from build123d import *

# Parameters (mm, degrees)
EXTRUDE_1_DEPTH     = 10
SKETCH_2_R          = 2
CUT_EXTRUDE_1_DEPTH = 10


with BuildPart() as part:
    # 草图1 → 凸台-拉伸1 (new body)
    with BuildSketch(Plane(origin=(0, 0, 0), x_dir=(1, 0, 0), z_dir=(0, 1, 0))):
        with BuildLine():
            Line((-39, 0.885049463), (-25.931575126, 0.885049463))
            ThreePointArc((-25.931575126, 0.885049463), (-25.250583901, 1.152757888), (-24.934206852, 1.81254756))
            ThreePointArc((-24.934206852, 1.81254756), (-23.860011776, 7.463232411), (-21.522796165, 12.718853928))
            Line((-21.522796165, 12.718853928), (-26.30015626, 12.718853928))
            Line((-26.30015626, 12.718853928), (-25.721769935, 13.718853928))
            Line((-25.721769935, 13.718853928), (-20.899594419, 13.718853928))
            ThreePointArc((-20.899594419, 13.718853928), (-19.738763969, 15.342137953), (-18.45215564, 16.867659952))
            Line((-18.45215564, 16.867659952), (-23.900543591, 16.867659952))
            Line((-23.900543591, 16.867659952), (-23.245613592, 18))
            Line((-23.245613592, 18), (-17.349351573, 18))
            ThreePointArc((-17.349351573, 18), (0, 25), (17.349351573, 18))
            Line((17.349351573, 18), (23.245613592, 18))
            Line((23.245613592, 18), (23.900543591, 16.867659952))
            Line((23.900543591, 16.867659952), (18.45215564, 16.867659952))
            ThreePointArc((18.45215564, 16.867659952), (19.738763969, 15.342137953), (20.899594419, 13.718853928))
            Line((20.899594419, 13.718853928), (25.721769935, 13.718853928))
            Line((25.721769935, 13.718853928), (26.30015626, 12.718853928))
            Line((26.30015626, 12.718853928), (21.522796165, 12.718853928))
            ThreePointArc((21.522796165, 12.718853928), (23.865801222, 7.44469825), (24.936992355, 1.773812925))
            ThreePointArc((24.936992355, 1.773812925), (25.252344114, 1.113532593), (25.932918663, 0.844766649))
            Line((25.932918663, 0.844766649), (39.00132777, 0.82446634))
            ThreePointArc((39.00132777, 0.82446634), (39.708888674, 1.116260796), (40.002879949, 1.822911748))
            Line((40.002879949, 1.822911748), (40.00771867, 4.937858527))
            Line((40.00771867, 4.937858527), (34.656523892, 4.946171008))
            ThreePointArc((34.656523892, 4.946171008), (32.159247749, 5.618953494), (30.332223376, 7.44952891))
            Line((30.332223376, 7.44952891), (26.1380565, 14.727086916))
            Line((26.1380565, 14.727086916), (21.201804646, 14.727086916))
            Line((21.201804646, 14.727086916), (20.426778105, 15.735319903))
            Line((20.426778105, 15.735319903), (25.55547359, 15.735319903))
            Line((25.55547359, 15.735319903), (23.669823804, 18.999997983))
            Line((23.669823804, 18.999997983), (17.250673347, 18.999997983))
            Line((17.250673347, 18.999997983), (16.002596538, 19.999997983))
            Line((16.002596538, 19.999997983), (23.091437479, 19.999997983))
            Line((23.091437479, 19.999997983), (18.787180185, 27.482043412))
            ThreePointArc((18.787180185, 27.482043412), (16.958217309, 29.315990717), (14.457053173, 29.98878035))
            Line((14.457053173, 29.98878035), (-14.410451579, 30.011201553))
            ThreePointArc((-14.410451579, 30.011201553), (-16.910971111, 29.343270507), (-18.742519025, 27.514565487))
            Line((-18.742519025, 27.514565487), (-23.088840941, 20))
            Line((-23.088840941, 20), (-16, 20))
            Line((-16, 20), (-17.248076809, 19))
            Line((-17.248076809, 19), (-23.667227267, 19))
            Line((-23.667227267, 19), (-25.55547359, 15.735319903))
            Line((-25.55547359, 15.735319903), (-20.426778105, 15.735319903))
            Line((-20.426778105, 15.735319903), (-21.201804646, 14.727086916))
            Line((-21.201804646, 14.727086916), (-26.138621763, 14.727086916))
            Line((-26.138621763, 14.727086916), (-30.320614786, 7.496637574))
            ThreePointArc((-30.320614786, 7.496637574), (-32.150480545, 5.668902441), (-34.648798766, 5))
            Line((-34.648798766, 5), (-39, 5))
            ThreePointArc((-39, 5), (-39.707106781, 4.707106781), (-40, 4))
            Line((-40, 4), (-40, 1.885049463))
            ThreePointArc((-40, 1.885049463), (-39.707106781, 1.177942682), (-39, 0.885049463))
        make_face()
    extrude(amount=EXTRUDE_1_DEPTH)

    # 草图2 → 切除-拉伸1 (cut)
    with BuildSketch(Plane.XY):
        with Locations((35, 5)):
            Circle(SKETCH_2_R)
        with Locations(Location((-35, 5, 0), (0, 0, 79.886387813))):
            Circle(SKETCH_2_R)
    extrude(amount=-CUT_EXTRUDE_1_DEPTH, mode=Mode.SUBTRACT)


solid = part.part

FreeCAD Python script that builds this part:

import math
import FreeCAD as App
import Part
import Sketcher

V = App.Vector
Q = App.Units.Quantity

doc = App.newDocument("Part")
params = doc.addObject("Spreadsheet::Sheet", "Params")
for row, (alias, value) in enumerate([
    ("sketch1_radius", "1 mm"),
    ("sketch1_radius2", "25 mm"),
    ("sketch1_radius3", "5 mm"),
    ("pad1_length", "10 mm"),
    ("sketch2_diameter", "4 mm"),
    ("pocket1_length", "10 mm"),
], start=1):
    params.set(f"A{row}", alias)
    params.set(f"B{row}", "=" + value)
    params.setAlias(f"B{row}", alias)

body = doc.addObject("PartDesign::Body", "Body")

sketch1 = body.newObject("Sketcher::SketchObject", "Sketch")
sketch1.AttachmentSupport = (doc.getObject("XZ_Plane"), [""])
sketch1.MapMode = "FlatFace"
sketch1.addGeometry([
    Part.LineSegment(V(-39, -0.9, 0), V(-25.9, -0.9, 0)),
    Part.ArcOfCircle(Part.Circle(V(-25.9, -1.9, 0), V(0, 0, 1), 1), math.radians(4), math.radians(90)),
    Part.ArcOfCircle(Part.Circle(V(0, 0, 0), V(0, 0, 1), 25), math.radians(-176), math.radians(-149)),
    Part.LineSegment(V(-21.5, -12.7, 0), V(-26.3, -12.7, 0)),
    Part.LineSegment(V(-26.3, -12.7, 0), V(-25.7, -13.7, 0)),
    Part.LineSegment(V(-25.7, -13.7, 0), V(-20.9, -13.7, 0)),
    Part.ArcOfCircle(Part.Circle(V(0, 0, 0), V(0, 0, 1), 25), math.radians(-146.72), math.radians(-137.57)),
    Part.LineSegment(V(-18.5, -16.9, 0), V(-23.9, -16.9, 0)),
    Part.LineSegment(V(-23.9, -16.9, 0), V(-23.2, -18, 0)),
    Part.LineSegment(V(-23.2, -18, 0), V(-17.3, -18, 0)),
    Part.ArcOfCircle(Part.Circle(V(0, 0, 0), V(0, 0, 1), 25), math.radians(-134), math.radians(-46)),
    Part.LineSegment(V(17.3, -18, 0), V(23.2, -18, 0)),
    Part.LineSegment(V(23.2, -18, 0), V(23.9, -16.9, 0)),
    Part.LineSegment(V(23.9, -16.9, 0), V(18.5, -16.9, 0)),
    Part.ArcOfCircle(Part.Circle(V(0, 0, 0), V(0, 0, 1), 25), math.radians(-42.43), math.radians(-33.28)),
    Part.LineSegment(V(20.9, -13.7, 0), V(25.7, -13.7, 0)),
    Part.LineSegment(V(25.7, -13.7, 0), V(26.3, -12.7, 0)),
    Part.LineSegment(V(26.3, -12.7, 0), V(21.5, -12.7, 0)),
    Part.ArcOfCircle(Part.Circle(V(0, 0, 0), V(0, 0, 1), 25), math.radians(-31), math.radians(-4)),
    Part.ArcOfCircle(Part.Circle(V(25.9, -1.8, 0), V(0, 0, 1), 1), math.radians(90), math.radians(176)),
    Part.LineSegment(V(25.9, -0.8, 0), V(39, -0.8, 0)),
    Part.ArcOfCircle(Part.Circle(V(39, -1.8, 0), V(0, 0, 1), 1), math.radians(0), math.radians(90)),
    Part.LineSegment(V(40, -1.8, 0), V(40, -4.9, 0)),
    Part.LineSegment(V(40, -4.9, 0), V(34.7, -4.9, 0)),
    Part.ArcOfCircle(Part.Circle(V(34.7, -9.9, 0), V(0, 0, 1), 5), math.radians(90), math.radians(150)),
    Part.LineSegment(V(30.3, -7.4, 0), V(26.1, -14.7, 0)),
    Part.LineSegment(V(26.1, -14.7, 0), V(21.2, -14.7, 0)),
    Part.LineSegment(V(21.2, -14.7, 0), V(20.4, -15.7, 0)),
    Part.LineSegment(V(20.4, -15.7, 0), V(25.6, -15.7, 0)),
    Part.LineSegment(V(25.6, -15.7, 0), V(23.7, -19, 0)),
    Part.LineSegment(V(23.7, -19, 0), V(17.3, -19, 0)),
    Part.LineSegment(V(17.3, -19, 0), V(16, -20, 0)),
    Part.LineSegment(V(16, -20, 0), V(23.1, -20, 0)),
    Part.LineSegment(V(23.1, -20, 0), V(18.8, -27.5, 0)),
    Part.ArcOfCircle(Part.Circle(V(14.5, -25, 0), V(0, 0, 1), 5), math.radians(-90), math.radians(-30)),
    Part.LineSegment(V(14.5, -30, 0), V(-14.4, -30, 0)),
    Part.ArcOfCircle(Part.Circle(V(-14.4, -25, 0), V(0, 0, 1), 5), math.radians(-150), math.radians(-90)),
    Part.LineSegment(V(-18.7, -27.5, 0), V(-23.1, -20, 0)),
    Part.LineSegment(V(-23.1, -20, 0), V(-16, -20, 0)),
    Part.LineSegment(V(-16, -20, 0), V(-17.2, -19, 0)),
    Part.LineSegment(V(-17.2, -19, 0), V(-23.7, -19, 0)),
    Part.LineSegment(V(-23.7, -19, 0), V(-25.6, -15.7, 0)),
    Part.LineSegment(V(-25.6, -15.7, 0), V(-20.4, -15.7, 0)),
    Part.LineSegment(V(-20.4, -15.7, 0), V(-21.2, -14.7, 0)),
    Part.LineSegment(V(-21.2, -14.7, 0), V(-26.1, -14.7, 0)),
    Part.LineSegment(V(-26.1, -14.7, 0), V(-30.3, -7.5, 0)),
    Part.ArcOfCircle(Part.Circle(V(-34.6, -10, 0), V(0, 0, 1), 5), math.radians(30), math.radians(90)),
    Part.LineSegment(V(-34.6, -5, 0), V(-39, -5, 0)),
    Part.ArcOfCircle(Part.Circle(V(-39, -4, 0), V(0, 0, 1), 1), math.radians(-180), math.radians(-90)),
    Part.LineSegment(V(-40, -4, 0), V(-40, -1.9, 0)),
    Part.ArcOfCircle(Part.Circle(V(-39, -1.9, 0), V(0, 0, 1), 1), math.radians(90), math.radians(180)),
], False)
sketch1.addConstraint([
    Sketcher.Constraint("Tangent", 0, 2, 1, 2),
    Sketcher.Constraint("Tangent", 1, 1, 2, 1),
    Sketcher.Constraint("Coincident", 2, 2, 3, 1),
    Sketcher.Constraint("Coincident", 3, 2, 4, 1),
    Sketcher.Constraint("Coincident", 4, 2, 5, 1),
    Sketcher.Constraint("Coincident", 5, 2, 6, 1),
    Sketcher.Constraint("Coincident", 6, 2, 7, 1),
    Sketcher.Constraint("Coincident", 7, 2, 8, 1),
    Sketcher.Constraint("Coincident", 8, 2, 9, 1),
    Sketcher.Constraint("Coincident", 9, 2, 10, 1),
    Sketcher.Constraint("Coincident", 10, 2, 11, 1),
    Sketcher.Constraint("Coincident", 11, 2, 12, 1),
    Sketcher.Constraint("Coincident", 12, 2, 13, 1),
    Sketcher.Constraint("Coincident", 13, 2, 14, 1),
    Sketcher.Constraint("Coincident", 14, 2, 15, 1),
    Sketcher.Constraint("Coincident", 15, 2, 16, 1),
    Sketcher.Constraint("Coincident", 16, 2, 17, 1),
    Sketcher.Constraint("Coincident", 17, 2, 18, 1),
    Sketcher.Constraint("Tangent", 18, 2, 19, 2),
    Sketcher.Constraint("Tangent", 19, 1, 20, 1),
    Sketcher.Constraint("Tangent", 20, 2, 21, 2),
    Sketcher.Constraint("Tangent", 21, 1, 22, 1),
    Sketcher.Constraint("Coincident", 22, 2, 23, 1),
    Sketcher.Constraint("Tangent", 23, 2, 24, 1),
    Sketcher.Constraint("Tangent", 24, 2, 25, 1),
    Sketcher.Constraint("Coincident", 25, 2, 26, 1),
    Sketcher.Constraint("Coincident", 26, 2, 27, 1),
    Sketcher.Constraint("Coincident", 27, 2, 28, 1),
    Sketcher.Constraint("Coincident", 28, 2, 29, 1),
    Sketcher.Constraint("Coincident", 29, 2, 30, 1),
    Sketcher.Constraint("Coincident", 30, 2, 31, 1),
    Sketcher.Constraint("Coincident", 31, 2, 32, 1),
    Sketcher.Constraint("Coincident", 32, 2, 33, 1),
    Sketcher.Constraint("Tangent", 33, 2, 34, 2),
    Sketcher.Constraint("Tangent", 34, 1, 35, 1),
    Sketcher.Constraint("Tangent", 35, 2, 36, 2),
    Sketcher.Constraint("Tangent", 36, 1, 37, 1),
    Sketcher.Constraint("Coincident", 37, 2, 38, 1),
    Sketcher.Constraint("Coincident", 38, 2, 39, 1),
    Sketcher.Constraint("Coincident", 39, 2, 40, 1),
    Sketcher.Constraint("Coincident", 40, 2, 41, 1),
    Sketcher.Constraint("Coincident", 41, 2, 42, 1),
    Sketcher.Constraint("Coincident", 42, 2, 43, 1),
    Sketcher.Constraint("Coincident", 43, 2, 44, 1),
    Sketcher.Constraint("Coincident", 44, 2, 45, 1),
    Sketcher.Constraint("Tangent", 45, 2, 46, 1),
    Sketcher.Constraint("Tangent", 46, 2, 47, 1),
    Sketcher.Constraint("Tangent", 47, 2, 48, 2),
    Sketcher.Constraint("Tangent", 48, 1, 49, 1),
    Sketcher.Constraint("Tangent", 49, 2, 50, 2),
    Sketcher.Constraint("Tangent", 50, 1, 0, 1),
    Sketcher.Constraint("Horizontal", 0),
    Sketcher.Constraint("Horizontal", 3),
    Sketcher.Constraint("Horizontal", 5),
    Sketcher.Constraint("Horizontal", 7),
    Sketcher.Constraint("Horizontal", 9),
    Sketcher.Constraint("Horizontal", 11),
    Sketcher.Constraint("Horizontal", 13),
    Sketcher.Constraint("Horizontal", 15),
    Sketcher.Constraint("Horizontal", 17),
    Sketcher.Constraint("Horizontal", 26),
    Sketcher.Constraint("Horizontal", 28),
    Sketcher.Constraint("Horizontal", 30),
    Sketcher.Constraint("Horizontal", 32),
    Sketcher.Constraint("Horizontal", 38),
    Sketcher.Constraint("Horizontal", 40),
    Sketcher.Constraint("Horizontal", 42),
    Sketcher.Constraint("Horizontal", 44),
    Sketcher.Constraint("Horizontal", 47),
    Sketcher.Constraint("Vertical", 49),
    Sketcher.Constraint("Coincident", 2, 3, -1, 1),
    Sketcher.Constraint("Coincident", 6, 3, -1, 1),
    Sketcher.Constraint("Coincident", 10, 3, -1, 1),
    Sketcher.Constraint("Coincident", 14, 3, -1, 1),
    Sketcher.Constraint("Coincident", 18, 3, -1, 1),
    Sketcher.Constraint("Equal", 2, 6),
    Sketcher.Constraint("Equal", 6, 10),
    Sketcher.Constraint("Equal", 10, 14),
    Sketcher.Constraint("Equal", 14, 18),
    Sketcher.Constraint("Equal", 1, 19),
    Sketcher.Constraint("Equal", 19, 21),
    Sketcher.Constraint("Equal", 24, 34),
    Sketcher.Constraint("Equal", 34, 36),
    Sketcher.Constraint("Equal", 36, 46),
    Sketcher.Constraint("Equal", 21, 48),
    Sketcher.Constraint("Equal", 48, 50),
    Sketcher.Constraint("Symmetric", 8, 2, 11, 2, -2),
    Sketcher.Constraint("Symmetric", 7, 2, 12, 2, -2),
    Sketcher.Constraint("Symmetric", 4, 2, 15, 2, -2),
    Sketcher.Constraint("Symmetric", 3, 2, 16, 2, -2),
    Sketcher.Constraint("Symmetric", 28, 2, 41, 2, -2),
    Sketcher.Constraint("Symmetric", 26, 2, 43, 2, -2),
    Sketcher.Constraint("Parallel", 4, 8),
    Sketcher.Constraint("Perpendicular", 20, 22),
    Sketcher.Constraint("Perpendicular", 22, 23),
    Sketcher.Constraint("Parallel", 8, 37),
    Sketcher.Constraint("Parallel", 37, 41),
    Sketcher.Constraint("Parallel", 41, 45),
    Sketcher.Constraint("Equal", 32, 38),
    Sketcher.Constraint("Equal", 30, 40),
    Sketcher.Constraint("Equal", 28, 42),
    Sketcher.Constraint("Equal", 31, 39),
    Sketcher.Constraint("Radius", 1, Q("1 mm")),
    Sketcher.Constraint("Radius", 2, Q("25 mm")),
    Sketcher.Constraint("Radius", 24, Q("5 mm")),
    Sketcher.Constraint("DistanceY", 46, 3, -1, 1, Q("10 mm")),
    Sketcher.Constraint("DistanceX", 48, 3, -1, 1, Q("39 mm")),
    Sketcher.Constraint("DistanceY", 8, 2, -1, 1, Q("18 mm")),
    Sketcher.Constraint("DistanceY", 37, 2, -1, 1, Q("20 mm")),
    Sketcher.Constraint("DistanceX", 38, 2, -1, 1, Q("16 mm")),
    Sketcher.Constraint("DistanceY", 39, 2, -1, 1, Q("19 mm")),
    Sketcher.Constraint("DistanceX", 47, 2, 47, 1, Q("4.351201 mm")),
    Sketcher.Constraint("Distance", 8, Q("1.308101 mm")),
    Sketcher.Constraint("Distance", 23, Q("5.351201 mm")),
    Sketcher.Constraint("DistanceX", 3, 2, 3, 1, Q("4.77736 mm")),
    Sketcher.Constraint("DistanceX", 26, 2, 26, 1, Q("4.936252 mm")),
    Sketcher.Constraint("DistanceX", 30, 2, 30, 1, Q("6.41915 mm")),
    Sketcher.Constraint("DistanceX", 32, 1, 32, 2, Q("7.088841 mm")),
    Sketcher.Constraint("DistanceY", 49, 1, 49, 2, Q("2.114951 mm")),
    Sketcher.Constraint("DistanceY", 35, 2, -1, 1, Q("30.011202 mm")),
    Sketcher.Constraint("Distance", 4, Q("1.155219 mm")),
    Sketcher.Constraint("Distance", 22, Q("3.114951 mm")),
    Sketcher.Constraint("Distance", 27, Q("1.271692 mm")),
    Sketcher.Constraint("Distance", 29, Q("3.770119 mm")),
    Sketcher.Constraint("Distance", 31, Q("1.59928 mm")),
    Sketcher.Constraint("Distance", 33, Q("8.631781 mm")),
    Sketcher.Constraint("Distance", 37, Q("8.680968 mm")),
    Sketcher.Constraint("Distance", 41, Q("3.77142 mm")),
    Sketcher.Constraint("Distance", 45, Q("8.352752 mm")),
    Sketcher.Constraint("DistanceX", 5, 1, 5, 2, Q("4.822176 mm")),
    Sketcher.Constraint("DistanceX", 7, 2, 7, 1, Q("5.448388 mm")),
    Sketcher.Constraint("DistanceX", 28, 1, 28, 2, Q("5.128695 mm")),
    Sketcher.Constraint("DistanceX", -1, 1, 21, 3, Q("39.002881 mm")),
    Sketcher.Constraint("DistanceX", -1, 1, 24, 3, Q("34.664291 mm")),
    Sketcher.Constraint("DistanceX", -1, 1, 34, 3, Q("14.45317 mm")),
    Sketcher.Constraint("DistanceY", 34, 3, -1, 1, Q("24.988782 mm")),
    Sketcher.Constraint("DistanceX", -1, 1, 19, 1, Q("25.932919 mm")),
    Sketcher.Constraint("DistanceX", -1, 1, 33, 2, Q("18.78718 mm")),
])
sketch1.setExpression("Constraints[102]", "Params.sketch1_radius")
sketch1.setExpression("Constraints[103]", "Params.sketch1_radius2")
sketch1.setExpression("Constraints[104]", "Params.sketch1_radius3")
pad1 = body.newObject("PartDesign::Pad", "Pad")
pad1.Profile = sketch1
pad1.setExpression("Length", "Params.pad1_length")
pad1.Reversed = True

sketch2 = body.newObject("Sketcher::SketchObject", "Sketch001")
sketch2.AttachmentSupport = (doc.getObject("XY_Plane"), [""])
sketch2.MapMode = "FlatFace"
sketch2.addGeometry([
    Part.Circle(V(35, 5, 0), V(0, 0, 1), 2),
    Part.Circle(V(-35, 5, 0), V(0, 0, 1), 2),
], False)
sketch2.addConstraint([
    Sketcher.Constraint("Equal", 0, 1),
    Sketcher.Constraint("Symmetric", 0, 3, 1, 3, -2),
    Sketcher.Constraint("Diameter", 0, Q("4 mm")),
    Sketcher.Constraint("DistanceX", -1, 1, 0, 3, Q("35 mm")),
    Sketcher.Constraint("DistanceY", -1, 1, 0, 3, Q("5 mm")),
])
sketch2.setExpression("Constraints[2]", "Params.sketch2_diameter")
pocket1 = body.newObject("PartDesign::Pocket", "Pocket")
pocket1.Profile = sketch2
pocket1.setExpression("Length", "Params.pocket1_length")

doc.recompute()
